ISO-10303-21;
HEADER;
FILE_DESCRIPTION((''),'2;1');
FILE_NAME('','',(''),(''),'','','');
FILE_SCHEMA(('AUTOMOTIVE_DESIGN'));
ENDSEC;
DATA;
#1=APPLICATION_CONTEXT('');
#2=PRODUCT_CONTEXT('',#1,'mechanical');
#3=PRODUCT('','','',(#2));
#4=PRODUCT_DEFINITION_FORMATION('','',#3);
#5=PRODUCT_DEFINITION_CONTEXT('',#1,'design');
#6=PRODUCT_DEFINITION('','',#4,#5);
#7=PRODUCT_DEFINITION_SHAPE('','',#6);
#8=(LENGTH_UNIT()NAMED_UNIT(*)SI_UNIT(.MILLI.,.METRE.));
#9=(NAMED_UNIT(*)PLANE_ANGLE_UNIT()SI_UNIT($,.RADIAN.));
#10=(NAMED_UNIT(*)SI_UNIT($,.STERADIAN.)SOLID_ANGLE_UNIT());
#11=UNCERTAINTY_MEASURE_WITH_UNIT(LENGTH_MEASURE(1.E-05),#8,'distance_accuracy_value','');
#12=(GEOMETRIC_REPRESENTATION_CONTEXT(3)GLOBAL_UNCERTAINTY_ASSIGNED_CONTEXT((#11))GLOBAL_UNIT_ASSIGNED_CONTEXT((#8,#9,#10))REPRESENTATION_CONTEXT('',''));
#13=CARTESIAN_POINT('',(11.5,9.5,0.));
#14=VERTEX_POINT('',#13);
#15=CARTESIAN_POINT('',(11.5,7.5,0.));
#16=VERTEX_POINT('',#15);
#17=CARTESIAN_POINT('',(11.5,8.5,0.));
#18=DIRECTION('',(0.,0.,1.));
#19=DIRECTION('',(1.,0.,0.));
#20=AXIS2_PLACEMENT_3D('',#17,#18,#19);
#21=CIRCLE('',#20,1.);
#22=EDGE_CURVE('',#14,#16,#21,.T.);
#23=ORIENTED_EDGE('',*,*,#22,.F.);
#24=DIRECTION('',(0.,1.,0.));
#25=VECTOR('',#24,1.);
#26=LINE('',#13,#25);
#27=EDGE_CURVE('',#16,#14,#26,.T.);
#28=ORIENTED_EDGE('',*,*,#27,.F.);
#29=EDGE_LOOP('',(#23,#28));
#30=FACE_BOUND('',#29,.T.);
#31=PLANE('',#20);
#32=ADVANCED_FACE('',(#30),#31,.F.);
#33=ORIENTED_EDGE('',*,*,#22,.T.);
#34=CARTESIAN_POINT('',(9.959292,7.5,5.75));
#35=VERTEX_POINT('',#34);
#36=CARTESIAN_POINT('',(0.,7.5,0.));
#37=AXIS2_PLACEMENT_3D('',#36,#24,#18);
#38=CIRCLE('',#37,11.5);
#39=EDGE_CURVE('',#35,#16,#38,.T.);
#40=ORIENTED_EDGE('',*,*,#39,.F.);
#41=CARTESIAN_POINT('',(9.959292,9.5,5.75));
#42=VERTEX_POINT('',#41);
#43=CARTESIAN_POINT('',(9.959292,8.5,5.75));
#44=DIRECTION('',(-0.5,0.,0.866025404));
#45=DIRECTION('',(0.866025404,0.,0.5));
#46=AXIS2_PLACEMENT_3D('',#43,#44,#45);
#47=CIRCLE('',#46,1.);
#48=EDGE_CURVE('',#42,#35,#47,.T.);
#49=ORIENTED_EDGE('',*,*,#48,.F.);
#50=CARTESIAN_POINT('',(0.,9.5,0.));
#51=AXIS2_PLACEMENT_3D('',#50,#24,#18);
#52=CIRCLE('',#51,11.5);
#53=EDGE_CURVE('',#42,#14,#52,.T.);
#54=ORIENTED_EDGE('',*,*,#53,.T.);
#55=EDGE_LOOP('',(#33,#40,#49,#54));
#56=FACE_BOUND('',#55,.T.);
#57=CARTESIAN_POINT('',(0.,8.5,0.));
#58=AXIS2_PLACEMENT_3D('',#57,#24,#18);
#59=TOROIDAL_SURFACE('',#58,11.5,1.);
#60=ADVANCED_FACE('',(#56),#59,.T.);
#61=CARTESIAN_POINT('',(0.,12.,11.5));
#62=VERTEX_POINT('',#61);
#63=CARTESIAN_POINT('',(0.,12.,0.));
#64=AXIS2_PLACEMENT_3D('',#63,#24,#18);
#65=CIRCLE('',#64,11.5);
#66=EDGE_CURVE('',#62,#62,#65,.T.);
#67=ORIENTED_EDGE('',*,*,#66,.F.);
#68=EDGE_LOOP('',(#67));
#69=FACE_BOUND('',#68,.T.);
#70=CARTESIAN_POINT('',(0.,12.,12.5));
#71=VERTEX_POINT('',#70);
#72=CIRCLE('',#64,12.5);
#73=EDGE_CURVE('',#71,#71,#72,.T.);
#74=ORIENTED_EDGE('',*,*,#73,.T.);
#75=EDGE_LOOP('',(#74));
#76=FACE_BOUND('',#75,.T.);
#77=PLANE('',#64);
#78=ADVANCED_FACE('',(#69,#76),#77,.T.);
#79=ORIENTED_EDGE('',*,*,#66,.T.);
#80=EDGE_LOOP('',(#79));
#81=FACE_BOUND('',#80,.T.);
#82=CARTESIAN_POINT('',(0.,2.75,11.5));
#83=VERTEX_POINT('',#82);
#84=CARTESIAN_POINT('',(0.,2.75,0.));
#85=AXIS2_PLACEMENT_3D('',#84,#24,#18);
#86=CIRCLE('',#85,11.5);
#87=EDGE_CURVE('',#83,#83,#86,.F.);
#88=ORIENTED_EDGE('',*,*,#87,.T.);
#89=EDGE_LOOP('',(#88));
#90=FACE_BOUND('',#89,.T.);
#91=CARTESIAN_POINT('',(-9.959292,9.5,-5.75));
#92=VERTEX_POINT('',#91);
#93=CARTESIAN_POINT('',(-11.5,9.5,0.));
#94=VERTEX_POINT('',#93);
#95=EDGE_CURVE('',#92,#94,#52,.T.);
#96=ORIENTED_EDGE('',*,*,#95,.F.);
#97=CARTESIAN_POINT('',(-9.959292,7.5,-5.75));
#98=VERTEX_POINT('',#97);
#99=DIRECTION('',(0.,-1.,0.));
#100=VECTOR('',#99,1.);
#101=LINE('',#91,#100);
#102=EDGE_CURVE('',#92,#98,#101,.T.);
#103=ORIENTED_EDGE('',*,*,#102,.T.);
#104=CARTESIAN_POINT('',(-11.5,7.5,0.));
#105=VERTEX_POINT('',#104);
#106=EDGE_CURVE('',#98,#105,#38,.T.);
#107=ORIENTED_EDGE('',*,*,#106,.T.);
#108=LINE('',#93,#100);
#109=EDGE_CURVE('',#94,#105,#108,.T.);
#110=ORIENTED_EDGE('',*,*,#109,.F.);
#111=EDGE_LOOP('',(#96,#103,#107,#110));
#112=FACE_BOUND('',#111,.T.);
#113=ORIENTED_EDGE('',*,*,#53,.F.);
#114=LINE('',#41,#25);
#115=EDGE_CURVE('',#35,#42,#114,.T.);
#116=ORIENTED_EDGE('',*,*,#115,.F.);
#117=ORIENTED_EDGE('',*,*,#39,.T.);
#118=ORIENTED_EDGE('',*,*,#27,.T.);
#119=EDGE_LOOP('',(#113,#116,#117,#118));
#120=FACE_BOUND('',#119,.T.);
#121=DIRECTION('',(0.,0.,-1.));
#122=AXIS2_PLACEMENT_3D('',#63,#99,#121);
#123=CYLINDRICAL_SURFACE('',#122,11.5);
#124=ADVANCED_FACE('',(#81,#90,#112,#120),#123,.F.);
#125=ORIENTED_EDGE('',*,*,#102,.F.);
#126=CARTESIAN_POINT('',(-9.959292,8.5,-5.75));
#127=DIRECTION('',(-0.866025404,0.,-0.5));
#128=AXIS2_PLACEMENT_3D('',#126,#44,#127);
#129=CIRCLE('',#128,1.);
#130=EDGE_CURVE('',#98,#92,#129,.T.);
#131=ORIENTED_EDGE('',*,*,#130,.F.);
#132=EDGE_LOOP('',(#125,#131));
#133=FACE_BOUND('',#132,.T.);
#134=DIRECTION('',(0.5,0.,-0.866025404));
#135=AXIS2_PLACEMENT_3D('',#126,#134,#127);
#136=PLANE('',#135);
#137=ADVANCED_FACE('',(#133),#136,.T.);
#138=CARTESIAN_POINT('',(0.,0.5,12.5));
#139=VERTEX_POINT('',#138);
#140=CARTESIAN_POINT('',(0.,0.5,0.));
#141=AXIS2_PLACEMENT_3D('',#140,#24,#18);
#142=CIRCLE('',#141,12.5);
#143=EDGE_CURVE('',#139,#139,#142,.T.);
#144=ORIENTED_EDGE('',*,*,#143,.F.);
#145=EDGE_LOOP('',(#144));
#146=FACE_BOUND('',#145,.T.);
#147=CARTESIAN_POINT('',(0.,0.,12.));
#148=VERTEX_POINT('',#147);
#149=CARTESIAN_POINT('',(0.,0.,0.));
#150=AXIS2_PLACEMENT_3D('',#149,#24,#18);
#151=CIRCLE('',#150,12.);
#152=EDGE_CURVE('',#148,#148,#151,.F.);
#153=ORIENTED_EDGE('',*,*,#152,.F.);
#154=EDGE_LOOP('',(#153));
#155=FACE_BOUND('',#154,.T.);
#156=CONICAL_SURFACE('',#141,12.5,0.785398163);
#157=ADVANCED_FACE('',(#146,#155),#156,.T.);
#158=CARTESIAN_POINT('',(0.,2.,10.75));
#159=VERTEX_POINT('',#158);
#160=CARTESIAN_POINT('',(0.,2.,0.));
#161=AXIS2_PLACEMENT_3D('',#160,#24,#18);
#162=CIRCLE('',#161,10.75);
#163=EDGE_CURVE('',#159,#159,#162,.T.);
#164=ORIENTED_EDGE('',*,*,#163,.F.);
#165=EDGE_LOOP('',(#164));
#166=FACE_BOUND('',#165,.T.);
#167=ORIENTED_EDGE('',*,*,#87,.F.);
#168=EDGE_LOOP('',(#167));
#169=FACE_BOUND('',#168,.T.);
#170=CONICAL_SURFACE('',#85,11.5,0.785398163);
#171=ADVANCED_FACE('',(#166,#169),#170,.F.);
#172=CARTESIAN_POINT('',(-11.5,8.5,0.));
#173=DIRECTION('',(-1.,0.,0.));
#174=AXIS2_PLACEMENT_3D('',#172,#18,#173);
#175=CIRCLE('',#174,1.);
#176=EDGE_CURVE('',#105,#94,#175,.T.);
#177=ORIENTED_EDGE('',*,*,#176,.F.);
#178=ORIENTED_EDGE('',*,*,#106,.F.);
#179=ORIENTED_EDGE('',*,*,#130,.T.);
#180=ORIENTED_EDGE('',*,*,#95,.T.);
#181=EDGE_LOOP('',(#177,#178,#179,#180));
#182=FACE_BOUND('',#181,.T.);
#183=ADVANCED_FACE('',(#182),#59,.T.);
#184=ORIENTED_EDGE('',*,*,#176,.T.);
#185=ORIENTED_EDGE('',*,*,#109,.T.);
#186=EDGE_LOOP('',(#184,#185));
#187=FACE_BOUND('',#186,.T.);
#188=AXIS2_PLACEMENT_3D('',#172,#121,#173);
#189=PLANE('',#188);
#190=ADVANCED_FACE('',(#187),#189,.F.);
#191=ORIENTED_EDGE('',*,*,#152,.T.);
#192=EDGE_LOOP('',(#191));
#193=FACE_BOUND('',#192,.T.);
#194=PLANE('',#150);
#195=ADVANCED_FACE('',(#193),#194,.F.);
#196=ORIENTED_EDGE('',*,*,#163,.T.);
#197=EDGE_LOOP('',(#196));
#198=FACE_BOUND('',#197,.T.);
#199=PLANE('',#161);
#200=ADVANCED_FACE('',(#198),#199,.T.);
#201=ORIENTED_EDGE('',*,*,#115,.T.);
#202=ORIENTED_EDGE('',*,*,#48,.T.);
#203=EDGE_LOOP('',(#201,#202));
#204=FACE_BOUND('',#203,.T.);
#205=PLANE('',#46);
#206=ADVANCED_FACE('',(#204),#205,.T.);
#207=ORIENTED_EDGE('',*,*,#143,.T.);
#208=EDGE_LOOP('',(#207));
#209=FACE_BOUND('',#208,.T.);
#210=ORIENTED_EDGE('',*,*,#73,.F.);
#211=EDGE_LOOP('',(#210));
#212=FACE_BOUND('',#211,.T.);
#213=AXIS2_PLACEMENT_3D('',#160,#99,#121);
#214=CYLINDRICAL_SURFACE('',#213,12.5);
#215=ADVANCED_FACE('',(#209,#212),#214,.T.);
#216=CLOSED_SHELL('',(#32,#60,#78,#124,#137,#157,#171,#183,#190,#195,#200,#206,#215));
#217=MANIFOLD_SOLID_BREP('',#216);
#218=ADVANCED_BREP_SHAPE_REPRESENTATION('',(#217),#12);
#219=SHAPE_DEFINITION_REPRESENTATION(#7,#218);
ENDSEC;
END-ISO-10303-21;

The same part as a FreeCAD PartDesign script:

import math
import FreeCAD as App
import Part
import Sketcher
from FreeCAD import Vector


def edges_at(feature, points):
    """Names of the edges that pass closest to the given points."""
    edges = feature.Shape.Edges
    near = lambda p: min(range(len(edges)), key=lambda i: edges[i].distToShape(Part.Vertex(*p))[0])
    return sorted({f"Edge{near(p) + 1}" for p in points})

doc = App.newDocument("Part")
params = doc.addObject("Spreadsheet::Sheet", "Params")
for row, (alias, value) in enumerate([
    ("sketch1_diameter", "25 mm"),
    ("pad1_length", "2 mm"),
    ("sketch2_diameter", "25 mm"),
    ("sketch2_diameter2", "23 mm"),
    ("pad2_length", "10 mm"),
    ("sketch3_radius", "1 mm"),
    ("revolution_angle", "30 deg"),
    ("chamfer_size", "0.5 mm"),
    ("chamfer2_size", "0.75 mm"),
], start=1):
    params.set(f"A{row}", alias)
    params.set(f"B{row}", "=" + value)
    params.setAlias(f"B{row}", alias)

body = doc.addObject("PartDesign::Body", "Body")

# Sketch on XZ plane
sketch1 = doc.addObject("Sketcher::SketchObject", "Sketch")
body.addObject(sketch1)
sketch1.AttachmentSupport = (doc.XZ_Plane, [""])
sketch1.MapMode = "FlatFace"
sketch1.addGeometry(Part.Circle(Vector(0, 0, 0), Vector(0, 0, 1), 12), False)
sketch1.addConstraint(Sketcher.Constraint("Coincident", 0, 3, -1, 1))
sketch1.addConstraint(Sketcher.Constraint("Diameter", 0, 25.0))
sketch1.setExpression("Constraints[1]", "Params.sketch1_diameter")
pad1 = doc.addObject("PartDesign::Pad", "Pad")
body.addObject(pad1)
pad1.Profile = sketch1
pad1.setExpression("Length", "Params.pad1_length")
pad1.Reversed = True

# Sketch on XZ plane
sketch2 = doc.addObject("Sketcher::SketchObject", "Sketch001")
body.addObject(sketch2)
sketch2.AttachmentSupport = (doc.XZ_Plane, [""])
sketch2.MapMode = "FlatFace"
sketch2.AttachmentOffset = App.Placement(Vector(0, 0, -2), App.Rotation())
sketch2.addGeometry(Part.Circle(Vector(0, 0, 0), Vector(0, 0, 1), 12), False)
sketch2.addGeometry(Part.Circle(Vector(0, 0, 0), Vector(0, 0, 1), 12), False)
sketch2.addConstraint(Sketcher.Constraint("Coincident", 0, 3, -1, 1))
sketch2.addConstraint(Sketcher.Constraint("Coincident", 1, 3, -1, 1))
sketch2.addConstraint(Sketcher.Constraint("Diameter", 0, 25.0))
sketch2.addConstraint(Sketcher.Constraint("Diameter", 1, 23.0))
sketch2.setExpression("Constraints[2]", "Params.sketch2_diameter")
sketch2.setExpression("Constraints[3]", "Params.sketch2_diameter2")
pad2 = doc.addObject("PartDesign::Pad", "Pad001")
body.addObject(pad2)
pad2.Profile = sketch2
pad2.setExpression("Length", "Params.pad2_length")
pad2.Reversed = True

# Sketch on XY plane
sketch3 = doc.addObject("Sketcher::SketchObject", "Sketch002")
body.addObject(sketch3)
sketch3.AttachmentSupport = (doc.XY_Plane, [""])
sketch3.MapMode = "FlatFace"
sketch3.addGeometry(Part.LineSegment(Vector(-11.5, 9.5, 0), Vector(-11.5, 7.5, 0)), False)
sketch3.addGeometry(Part.ArcOfCircle(Part.Circle(Vector(-11.5, 8.5, 0), Vector(0, 0, 1), 1), math.radians(-90), math.radians(90)), False)
sketch3.addGeometry(Part.LineSegment(Vector(11.5, 7.5, 0), Vector(11.5, 9.5, 0)), False)
sketch3.addGeometry(Part.ArcOfCircle(Part.Circle(Vector(11.5, 8.5, 0), Vector(0, 0, 1), 1), math.radians(90), math.radians(270)), False)
sketch3.addConstraint(Sketcher.Constraint("Coincident", 0, 1, 1, 2))
sketch3.addConstraint(Sketcher.Constraint("Coincident", 1, 1, 0, 2))
sketch3.addConstraint(Sketcher.Constraint("Coincident", 2, 1, 3, 2))
sketch3.addConstraint(Sketcher.Constraint("Coincident", 3, 1, 2, 2))
sketch3.addConstraint(Sketcher.Constraint("Vertical", 0))
sketch3.addConstraint(Sketcher.Constraint("Vertical", 2))
sketch3.addConstraint(Sketcher.Constraint("Equal", 1, 3))
sketch3.addConstraint(Sketcher.Constraint("Symmetric", 1, 3, 3, 3, -2))
sketch3.addConstraint(Sketcher.Constraint("Vertical", 1, 3, 0, 1))
sketch3.addConstraint(Sketcher.Constraint("Vertical", 3, 3, 2, 1))
sketch3.addConstraint(Sketcher.Constraint("Radius", 1, 1.0))
sketch3.addConstraint(Sketcher.Constraint("DistanceX", 1, 3, 3, 3, 23.0))
sketch3.addConstraint(Sketcher.Constraint("DistanceY", -1, 1, 1, 3, 8.5))
sketch3.setExpression("Constraints[10]", "Params.sketch3_radius")
revolution = doc.addObject("PartDesign::Revolution", "Revolution")
body.addObject(revolution)
revolution.Profile = sketch3
revolution.ReferenceAxis = (sketch3, ["V_Axis"])
revolution.setExpression("Angle", "Params.revolution_angle")
revolution.Reversed = True
doc.recompute()

chamfer = doc.addObject("PartDesign::Chamfer", "Chamfer")
body.addObject(chamfer)
chamfer.Base = (revolution, edges_at(revolution, [(0, 0, -12.5)]))
chamfer.setExpression("Size", "Params.chamfer_size")
doc.recompute()

chamfer2 = doc.addObject("PartDesign::Chamfer", "Chamfer001")
body.addObject(chamfer2)
chamfer2.Base = (chamfer, edges_at(chamfer, [(0, 2, -11.5)]))
chamfer2.setExpression("Size", "Params.chamfer2_size")

doc.recompute()
